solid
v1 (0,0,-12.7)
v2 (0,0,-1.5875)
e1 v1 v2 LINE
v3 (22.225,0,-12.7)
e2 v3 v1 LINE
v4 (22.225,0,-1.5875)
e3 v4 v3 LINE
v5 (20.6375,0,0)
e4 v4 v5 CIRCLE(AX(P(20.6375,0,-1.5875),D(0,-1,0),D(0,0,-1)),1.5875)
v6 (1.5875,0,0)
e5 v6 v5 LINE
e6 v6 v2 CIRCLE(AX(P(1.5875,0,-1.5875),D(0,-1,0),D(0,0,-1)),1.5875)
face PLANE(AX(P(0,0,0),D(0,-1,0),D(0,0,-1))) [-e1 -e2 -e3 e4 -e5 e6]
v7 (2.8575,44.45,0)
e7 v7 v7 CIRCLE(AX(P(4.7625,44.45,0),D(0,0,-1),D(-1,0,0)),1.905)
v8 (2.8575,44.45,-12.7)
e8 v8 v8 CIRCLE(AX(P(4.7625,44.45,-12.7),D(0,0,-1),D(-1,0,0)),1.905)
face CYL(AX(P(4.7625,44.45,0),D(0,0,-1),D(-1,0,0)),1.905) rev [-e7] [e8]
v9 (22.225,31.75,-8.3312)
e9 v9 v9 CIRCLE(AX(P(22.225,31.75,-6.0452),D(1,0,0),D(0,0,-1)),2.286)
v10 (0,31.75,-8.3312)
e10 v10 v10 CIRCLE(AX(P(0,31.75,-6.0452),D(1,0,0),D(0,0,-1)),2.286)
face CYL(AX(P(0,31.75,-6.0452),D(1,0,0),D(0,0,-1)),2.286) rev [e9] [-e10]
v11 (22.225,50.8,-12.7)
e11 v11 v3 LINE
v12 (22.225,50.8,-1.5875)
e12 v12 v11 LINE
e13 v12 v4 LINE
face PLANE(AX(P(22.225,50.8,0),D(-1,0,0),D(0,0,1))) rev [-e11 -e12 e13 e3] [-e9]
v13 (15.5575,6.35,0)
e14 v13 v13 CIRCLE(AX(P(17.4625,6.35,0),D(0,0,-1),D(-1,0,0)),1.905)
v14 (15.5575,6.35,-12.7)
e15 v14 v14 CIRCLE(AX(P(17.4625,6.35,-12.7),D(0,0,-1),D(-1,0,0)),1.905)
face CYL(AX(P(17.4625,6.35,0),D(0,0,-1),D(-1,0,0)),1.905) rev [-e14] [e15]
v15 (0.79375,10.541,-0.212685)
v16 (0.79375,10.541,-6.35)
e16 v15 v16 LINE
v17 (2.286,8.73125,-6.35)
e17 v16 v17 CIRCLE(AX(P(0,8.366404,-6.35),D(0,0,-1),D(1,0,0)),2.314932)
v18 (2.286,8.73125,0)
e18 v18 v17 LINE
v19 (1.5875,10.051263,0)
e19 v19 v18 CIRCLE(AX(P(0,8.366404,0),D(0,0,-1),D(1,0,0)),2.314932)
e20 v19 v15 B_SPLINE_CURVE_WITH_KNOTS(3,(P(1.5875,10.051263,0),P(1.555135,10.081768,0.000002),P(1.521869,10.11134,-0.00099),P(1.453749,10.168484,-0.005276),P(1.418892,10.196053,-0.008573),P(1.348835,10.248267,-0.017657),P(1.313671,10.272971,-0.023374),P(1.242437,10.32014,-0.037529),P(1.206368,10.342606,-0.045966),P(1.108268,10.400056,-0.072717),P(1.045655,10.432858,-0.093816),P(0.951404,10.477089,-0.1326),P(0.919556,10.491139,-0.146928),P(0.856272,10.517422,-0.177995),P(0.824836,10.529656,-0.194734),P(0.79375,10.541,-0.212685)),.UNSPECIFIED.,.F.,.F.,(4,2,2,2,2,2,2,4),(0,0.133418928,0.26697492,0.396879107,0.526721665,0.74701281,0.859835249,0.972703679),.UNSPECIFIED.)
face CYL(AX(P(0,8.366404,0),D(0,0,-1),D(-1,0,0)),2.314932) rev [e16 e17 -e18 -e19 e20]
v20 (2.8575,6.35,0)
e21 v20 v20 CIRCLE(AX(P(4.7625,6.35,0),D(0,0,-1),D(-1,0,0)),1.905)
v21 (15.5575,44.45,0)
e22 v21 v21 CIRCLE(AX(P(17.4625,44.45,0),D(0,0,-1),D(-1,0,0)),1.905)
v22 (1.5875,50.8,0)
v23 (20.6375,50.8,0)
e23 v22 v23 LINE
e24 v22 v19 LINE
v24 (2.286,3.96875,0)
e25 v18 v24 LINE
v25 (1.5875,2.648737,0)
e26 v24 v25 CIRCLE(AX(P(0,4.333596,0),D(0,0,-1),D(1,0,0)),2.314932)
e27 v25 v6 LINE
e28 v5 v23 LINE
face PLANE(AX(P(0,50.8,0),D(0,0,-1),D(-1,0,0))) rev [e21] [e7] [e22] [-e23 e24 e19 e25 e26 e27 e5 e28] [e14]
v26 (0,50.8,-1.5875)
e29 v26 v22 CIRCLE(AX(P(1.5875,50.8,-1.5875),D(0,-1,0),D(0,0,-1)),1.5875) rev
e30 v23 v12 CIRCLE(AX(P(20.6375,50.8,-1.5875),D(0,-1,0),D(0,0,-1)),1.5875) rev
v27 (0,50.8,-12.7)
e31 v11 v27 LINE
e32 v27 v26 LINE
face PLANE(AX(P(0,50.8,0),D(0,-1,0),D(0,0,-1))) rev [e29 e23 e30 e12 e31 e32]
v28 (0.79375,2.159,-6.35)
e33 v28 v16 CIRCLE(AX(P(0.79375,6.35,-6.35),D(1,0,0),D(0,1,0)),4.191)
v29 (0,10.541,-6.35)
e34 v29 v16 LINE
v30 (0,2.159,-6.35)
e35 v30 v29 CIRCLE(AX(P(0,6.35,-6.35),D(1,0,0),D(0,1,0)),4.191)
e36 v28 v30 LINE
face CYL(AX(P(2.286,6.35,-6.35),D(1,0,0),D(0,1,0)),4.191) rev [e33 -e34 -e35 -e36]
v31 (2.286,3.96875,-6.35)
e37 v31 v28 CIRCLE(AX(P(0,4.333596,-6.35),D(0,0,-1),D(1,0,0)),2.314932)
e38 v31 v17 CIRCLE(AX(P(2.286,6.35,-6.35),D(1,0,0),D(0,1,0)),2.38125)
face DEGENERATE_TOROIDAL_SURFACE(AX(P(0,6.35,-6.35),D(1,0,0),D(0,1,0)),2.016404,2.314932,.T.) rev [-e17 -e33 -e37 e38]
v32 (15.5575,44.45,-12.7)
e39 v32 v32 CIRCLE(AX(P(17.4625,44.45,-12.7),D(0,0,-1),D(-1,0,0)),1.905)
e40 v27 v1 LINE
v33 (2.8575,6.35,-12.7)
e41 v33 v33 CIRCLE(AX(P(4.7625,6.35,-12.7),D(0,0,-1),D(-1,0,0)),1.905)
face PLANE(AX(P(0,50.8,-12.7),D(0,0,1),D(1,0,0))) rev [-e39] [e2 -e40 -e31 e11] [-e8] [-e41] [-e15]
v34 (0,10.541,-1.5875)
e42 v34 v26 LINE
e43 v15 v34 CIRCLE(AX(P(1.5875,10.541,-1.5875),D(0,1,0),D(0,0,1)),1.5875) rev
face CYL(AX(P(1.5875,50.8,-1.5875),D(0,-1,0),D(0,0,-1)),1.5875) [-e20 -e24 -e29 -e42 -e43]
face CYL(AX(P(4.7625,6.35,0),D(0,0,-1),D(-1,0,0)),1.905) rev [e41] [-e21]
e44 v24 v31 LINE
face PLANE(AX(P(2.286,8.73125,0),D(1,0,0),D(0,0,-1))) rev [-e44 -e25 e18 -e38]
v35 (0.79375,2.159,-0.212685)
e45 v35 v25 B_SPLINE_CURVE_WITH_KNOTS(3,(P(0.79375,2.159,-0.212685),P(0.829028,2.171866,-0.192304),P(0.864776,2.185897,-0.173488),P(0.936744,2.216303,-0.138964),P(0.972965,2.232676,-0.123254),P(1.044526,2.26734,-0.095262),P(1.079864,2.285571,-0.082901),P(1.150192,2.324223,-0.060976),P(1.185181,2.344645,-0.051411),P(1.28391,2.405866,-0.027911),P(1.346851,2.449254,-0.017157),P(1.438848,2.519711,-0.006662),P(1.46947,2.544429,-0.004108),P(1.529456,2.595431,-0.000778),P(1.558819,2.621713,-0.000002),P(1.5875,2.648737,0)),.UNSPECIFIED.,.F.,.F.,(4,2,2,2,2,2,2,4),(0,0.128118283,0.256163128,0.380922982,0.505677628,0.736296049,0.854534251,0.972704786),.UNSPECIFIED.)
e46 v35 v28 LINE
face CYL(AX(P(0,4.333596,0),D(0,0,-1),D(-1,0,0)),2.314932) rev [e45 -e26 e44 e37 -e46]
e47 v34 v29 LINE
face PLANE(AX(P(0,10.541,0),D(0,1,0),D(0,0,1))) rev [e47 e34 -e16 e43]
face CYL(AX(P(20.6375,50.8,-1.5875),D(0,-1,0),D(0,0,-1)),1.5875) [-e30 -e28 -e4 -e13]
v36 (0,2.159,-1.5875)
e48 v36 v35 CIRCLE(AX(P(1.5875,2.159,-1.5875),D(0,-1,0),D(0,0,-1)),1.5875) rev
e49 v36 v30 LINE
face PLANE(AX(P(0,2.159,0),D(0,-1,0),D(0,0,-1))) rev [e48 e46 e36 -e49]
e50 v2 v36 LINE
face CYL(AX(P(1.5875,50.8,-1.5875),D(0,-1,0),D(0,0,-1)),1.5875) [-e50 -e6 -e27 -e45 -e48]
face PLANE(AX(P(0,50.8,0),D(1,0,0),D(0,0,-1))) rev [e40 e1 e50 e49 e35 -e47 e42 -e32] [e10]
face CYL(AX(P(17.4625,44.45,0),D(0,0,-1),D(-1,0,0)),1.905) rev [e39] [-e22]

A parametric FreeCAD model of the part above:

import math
import FreeCAD as App
import Part
import Sketcher

V = App.Vector
Q = App.Units.Quantity


def edges_at(feature, points):
    """Names of the edges that pass closest to the given points."""
    edges = feature.Shape.Edges
    near = lambda p: min(range(len(edges)), key=lambda i: edges[i].distToShape(Part.Vertex(*p))[0])
    return sorted({f"Edge{near(p) + 1}" for p in points})

doc = App.newDocument("Part")
body = doc.addObject("PartDesign::Body", "Body")

sketch1 = body.newObject("Sketcher::SketchObject", "Sketch")
sketch1.AttachmentSupport = (doc.getObject("XZ_Plane"), [""])
sketch1.MapMode = "FlatFace"
sketch1.addGeometry([
    Part.LineSegment(V(0, -12.7, 0), V(0, 0, 0)),
    Part.LineSegment(V(0, 0, 0), V(22.225, 0, 0)),
    Part.LineSegment(V(22.225, 0, 0), V(22.225, -12.7, 0)),
    Part.LineSegment(V(22.225, -12.7, 0), V(0, -12.7, 0)),
], False)
sketch1.addConstraint([
    Sketcher.Constraint("Coincident", 0, 2, 1, 1),
    Sketcher.Constraint("Coincident", 1, 2, 2, 1),
    Sketcher.Constraint("Coincident", 2, 2, 3, 1),
    Sketcher.Constraint("Coincident", 3, 2, 0, 1),
    Sketcher.Constraint("Vertical", 0),
    Sketcher.Constraint("Horizontal", 1),
    Sketcher.Constraint("Vertical", 2),
    Sketcher.Constraint("Horizontal", 3),
    Sketcher.Constraint("Coincident", 0, 2, -1, 1),
    Sketcher.Constraint("DistanceY", 0, 1, 0, 2, Q("0.5 in")),
    Sketcher.Constraint("DistanceX", 1, 1, 1, 2, Q("0.875 in")),
])
pad1 = body.newObject("PartDesign::Pad", "Pad")
pad1.Profile = sketch1
pad1.Length = Q("2 in")
pad1.Reversed = True

sketch2 = body.newObject("Sketcher::SketchObject", "Sketch001")
sketch2.AttachmentSupport = (doc.getObject("XY_Plane"), [""])
sketch2.MapMode = "FlatFace"
sketch2.AttachmentOffset = App.Placement(V(0, 0, -0.5 * 25.4), App.Rotation())
sketch2.addGeometry([
    Part.Circle(V(17.4625, 44.45, 0), V(0, 0, 1), 1.905),
    Part.Circle(V(17.4625, 6.35, 0), V(0, 0, 1), 1.905),
    Part.Circle(V(4.7625, 44.45, 0), V(0, 0, 1), 1.905),
    Part.Circle(V(4.7625, 6.35, 0), V(0, 0, 1), 1.905),
], False)
sketch2.addConstraint([
    Sketcher.Constraint("Equal", 0, 1),
    Sketcher.Constraint("Equal", 1, 2),
    Sketcher.Constraint("Equal", 2, 3),
    Sketcher.Constraint("Horizontal", 0, 3, 2, 3),
    Sketcher.Constraint("Horizontal", 1, 3, 3, 3),
    Sketcher.Constraint("Vertical", 0, 3, 1, 3),
    Sketcher.Constraint("Vertical", 2, 3, 3, 3),
    Sketcher.Constraint("Diameter", 0, Q("0.15 in")),
    Sketcher.Constraint("DistanceY", 1, 3, 0, 3, Q("1.5 in")),
    Sketcher.Constraint("DistanceX", 2, 3, 0, 3, Q("0.5 in")),
    Sketcher.Constraint("DistanceY", -1, 1, 0, 3, Q("1.75 in")),
    Sketcher.Constraint("DistanceX", -1, 1, 0, 3, Q("0.6875 in")),
])
pocket1 = body.newObject("PartDesign::Pocket", "Pocket")
pocket1.Profile = sketch2
pocket1.Type = "ThroughAll"
pocket1.Reversed = True

sketch3 = body.newObject("Sketcher::SketchObject", "Sketch002")
sketch3.AttachmentSupport = (doc.getObject("XY_Plane"), [""])
sketch3.MapMode = "FlatFace"
sketch3.AttachmentOffset = App.Placement(V(0, 0, -0.25 * 25.4), App.Rotation())
sketch3.addGeometry([
    Part.LineSegment(V(0, 2.159, 0), V(0, 10.541, 0)),
    Part.LineSegment(V(0, 10.541, 0), V(0.79375, 10.541, 0)),
    Part.ArcOfCircle(Part.Circle(V(0, 8.366404, 0), V(0, 0, 1), 2.314932), math.radians(9.067951), math.radians(69.9474)),
    Part.LineSegment(V(2.286, 8.73125, 0), V(2.286, 3.96875, 0)),
    Part.ArcOfCircle(Part.Circle(V(0, 4.333596, 0), V(0, 0, 1), 2.314932), math.radians(-69.9474), math.radians(-9.067951)),
    Part.LineSegment(V(0.79375, 2.159, 0), V(0, 2.159, 0)),
], False)
sketch3.addConstraint([
    Sketcher.Constraint("Coincident", 0, 2, 1, 1),
    Sketcher.Constraint("Coincident", 1, 2, 2, 2),
    Sketcher.Constraint("Coincident", 2, 1, 3, 1),
    Sketcher.Constraint("Coincident", 3, 2, 4, 2),
    Sketcher.Constraint("Coincident", 4, 1, 5, 1),
    Sketcher.Constraint("Coincident", 5, 2, 0, 1),
    Sketcher.Constraint("Vertical", 0),
    Sketcher.Constraint("Horizontal", 1),
    Sketcher.Constraint("Vertical", 3),
    Sketcher.Constraint("Horizontal", 5),
    Sketcher.Constraint("Equal", 2, 4),
    Sketcher.Constraint("PointOnObject", 2, 3, -2),
    Sketcher.Constraint("PointOnObject", 4, 3, -2),
    Sketcher.Constraint("PointOnObject", 0, 2, -2),
    Sketcher.Constraint("Vertical", 1, 2, 4, 1),
    Sketcher.Constraint("DistanceY", 0, 1, 0, 2, Q("0.33 in")),
    Sketcher.Constraint("DistanceX", 1, 1, 1, 2, Q("0.03125 in")),
    Sketcher.Constraint("DistanceY", 3, 2, 3, 1, Q("0.1875 in")),
    Sketcher.Constraint("DistanceX", -1, 1, 2, 1, Q("0.09 in")),
    Sketcher.Constraint("DistanceY", -1, 1, 0, 2, Q("0.415 in")),
])
pocket2 = body.newObject("PartDesign::Pocket", "Pocket001")
pocket2.Profile = sketch3
pocket2.Type = "ThroughAll"
pocket2.Reversed = True

sketch4 = body.newObject("Sketcher::SketchObject", "Sketch003")
sketch4.AttachmentSupport = (doc.getObject("XY_Plane"), [""])
sketch4.MapMode = "FlatFace"
sketch4.AttachmentOffset = App.Placement(V(0, 0, -0.25 * 25.4), App.Rotation())
sketch4.addGeometry([
    Part.LineSegment(V(2.286, 6.35, 0), V(0, 6.35, 0)),
    Part.LineSegment(V(0, 6.35, 0), V(0, 10.541, 0)),
    Part.LineSegment(V(0, 10.541, 0), V(0.79375, 10.541, 0)),
    Part.ArcOfCircle(Part.Circle(V(0, 8.366404, 0), V(0, 0, 1), 2.314932), math.radians(9.067951), math.radians(69.9474)),
    Part.LineSegment(V(2.286, 8.73125, 0), V(2.286, 6.35, 0)),
], False)
sketch4.addGeometry(Part.LineSegment(V(2.286, 6.35, 0), V(0, 6.35, 0)), True)
sketch4.addConstraint([
    Sketcher.Constraint("Coincident", 0, 2, 1, 1),
    Sketcher.Constraint("Coincident", 1, 2, 2, 1),
    Sketcher.Constraint("Coincident", 2, 2, 3, 2),
    Sketcher.Constraint("Coincident", 3, 1, 4, 1),
    Sketcher.Constraint("Coincident", 4, 2, 0, 1),
    Sketcher.Constraint("Horizontal", 0),
    Sketcher.Constraint("Vertical", 1),
    Sketcher.Constraint("Horizontal", 2),
    Sketcher.Constraint("Vertical", 4),
    Sketcher.Constraint("Horizontal", 5),
    Sketcher.Constraint("Coincident", 5, 1, 4, 2),
    Sketcher.Constraint("PointOnObject", 3, 3, -2),
    Sketcher.Constraint("PointOnObject", 0, 2, -2),
    Sketcher.Constraint("PointOnObject", 5, 2, -2),
    Sketcher.Constraint("DistanceX", 0, 2, 0, 1, Q("0.09 in")),
    Sketcher.Constraint("DistanceX", 2, 1, 2, 2, Q("0.03125 in")),
    Sketcher.Constraint("DistanceY", 1, 1, 1, 2, Q("0.165 in")),
    Sketcher.Constraint("DistanceY", 4, 2, 4, 1, Q("0.09375 in")),
    Sketcher.Constraint("DistanceY", -1, 1, 0, 2, Q("0.25 in")),
])
groove = body.newObject("PartDesign::Groove", "Groove")
groove.Profile = sketch4
groove.ReferenceAxis = (sketch4, ["Axis0"])
groove.Angle = 360
doc.recompute()

fillet = body.newObject("PartDesign::Fillet", "Fillet")
fillet.Base = (groove, edges_at(groove, [(0, 30.671, 0), (0, 1.079, 0), (22.225, 25.4, 0)]))
fillet.Radius = Q("0.0625 in")

sketch5 = body.newObject("Sketcher::SketchObject", "Sketch004")
sketch5.AttachmentSupport = (doc.getObject("YZ_Plane"), [""])
sketch5.MapMode = "FlatFace"
sketch5.AttachmentOffset = App.Placement(V(0, 0, 0.875 * 25.4), App.Rotation())
sketch5.addGeometry(Part.Circle(V(31.75, -6.0452, 0), V(0, 0, 1), 2.286), False)
sketch5.addConstraint([
    Sketcher.Constraint("Diameter", 0, Q("0.18 in")),
    Sketcher.Constraint("DistanceX", -1, 1, 0, 3, Q("1.25 in")),
    Sketcher.Constraint("DistanceY", 0, 3, -1, 1, Q("0.238 in")),
])
pocket3 = body.newObject("PartDesign::Pocket", "Pocket002")
pocket3.Profile = sketch5
pocket3.Type = "ThroughAll"

doc.recompute()
